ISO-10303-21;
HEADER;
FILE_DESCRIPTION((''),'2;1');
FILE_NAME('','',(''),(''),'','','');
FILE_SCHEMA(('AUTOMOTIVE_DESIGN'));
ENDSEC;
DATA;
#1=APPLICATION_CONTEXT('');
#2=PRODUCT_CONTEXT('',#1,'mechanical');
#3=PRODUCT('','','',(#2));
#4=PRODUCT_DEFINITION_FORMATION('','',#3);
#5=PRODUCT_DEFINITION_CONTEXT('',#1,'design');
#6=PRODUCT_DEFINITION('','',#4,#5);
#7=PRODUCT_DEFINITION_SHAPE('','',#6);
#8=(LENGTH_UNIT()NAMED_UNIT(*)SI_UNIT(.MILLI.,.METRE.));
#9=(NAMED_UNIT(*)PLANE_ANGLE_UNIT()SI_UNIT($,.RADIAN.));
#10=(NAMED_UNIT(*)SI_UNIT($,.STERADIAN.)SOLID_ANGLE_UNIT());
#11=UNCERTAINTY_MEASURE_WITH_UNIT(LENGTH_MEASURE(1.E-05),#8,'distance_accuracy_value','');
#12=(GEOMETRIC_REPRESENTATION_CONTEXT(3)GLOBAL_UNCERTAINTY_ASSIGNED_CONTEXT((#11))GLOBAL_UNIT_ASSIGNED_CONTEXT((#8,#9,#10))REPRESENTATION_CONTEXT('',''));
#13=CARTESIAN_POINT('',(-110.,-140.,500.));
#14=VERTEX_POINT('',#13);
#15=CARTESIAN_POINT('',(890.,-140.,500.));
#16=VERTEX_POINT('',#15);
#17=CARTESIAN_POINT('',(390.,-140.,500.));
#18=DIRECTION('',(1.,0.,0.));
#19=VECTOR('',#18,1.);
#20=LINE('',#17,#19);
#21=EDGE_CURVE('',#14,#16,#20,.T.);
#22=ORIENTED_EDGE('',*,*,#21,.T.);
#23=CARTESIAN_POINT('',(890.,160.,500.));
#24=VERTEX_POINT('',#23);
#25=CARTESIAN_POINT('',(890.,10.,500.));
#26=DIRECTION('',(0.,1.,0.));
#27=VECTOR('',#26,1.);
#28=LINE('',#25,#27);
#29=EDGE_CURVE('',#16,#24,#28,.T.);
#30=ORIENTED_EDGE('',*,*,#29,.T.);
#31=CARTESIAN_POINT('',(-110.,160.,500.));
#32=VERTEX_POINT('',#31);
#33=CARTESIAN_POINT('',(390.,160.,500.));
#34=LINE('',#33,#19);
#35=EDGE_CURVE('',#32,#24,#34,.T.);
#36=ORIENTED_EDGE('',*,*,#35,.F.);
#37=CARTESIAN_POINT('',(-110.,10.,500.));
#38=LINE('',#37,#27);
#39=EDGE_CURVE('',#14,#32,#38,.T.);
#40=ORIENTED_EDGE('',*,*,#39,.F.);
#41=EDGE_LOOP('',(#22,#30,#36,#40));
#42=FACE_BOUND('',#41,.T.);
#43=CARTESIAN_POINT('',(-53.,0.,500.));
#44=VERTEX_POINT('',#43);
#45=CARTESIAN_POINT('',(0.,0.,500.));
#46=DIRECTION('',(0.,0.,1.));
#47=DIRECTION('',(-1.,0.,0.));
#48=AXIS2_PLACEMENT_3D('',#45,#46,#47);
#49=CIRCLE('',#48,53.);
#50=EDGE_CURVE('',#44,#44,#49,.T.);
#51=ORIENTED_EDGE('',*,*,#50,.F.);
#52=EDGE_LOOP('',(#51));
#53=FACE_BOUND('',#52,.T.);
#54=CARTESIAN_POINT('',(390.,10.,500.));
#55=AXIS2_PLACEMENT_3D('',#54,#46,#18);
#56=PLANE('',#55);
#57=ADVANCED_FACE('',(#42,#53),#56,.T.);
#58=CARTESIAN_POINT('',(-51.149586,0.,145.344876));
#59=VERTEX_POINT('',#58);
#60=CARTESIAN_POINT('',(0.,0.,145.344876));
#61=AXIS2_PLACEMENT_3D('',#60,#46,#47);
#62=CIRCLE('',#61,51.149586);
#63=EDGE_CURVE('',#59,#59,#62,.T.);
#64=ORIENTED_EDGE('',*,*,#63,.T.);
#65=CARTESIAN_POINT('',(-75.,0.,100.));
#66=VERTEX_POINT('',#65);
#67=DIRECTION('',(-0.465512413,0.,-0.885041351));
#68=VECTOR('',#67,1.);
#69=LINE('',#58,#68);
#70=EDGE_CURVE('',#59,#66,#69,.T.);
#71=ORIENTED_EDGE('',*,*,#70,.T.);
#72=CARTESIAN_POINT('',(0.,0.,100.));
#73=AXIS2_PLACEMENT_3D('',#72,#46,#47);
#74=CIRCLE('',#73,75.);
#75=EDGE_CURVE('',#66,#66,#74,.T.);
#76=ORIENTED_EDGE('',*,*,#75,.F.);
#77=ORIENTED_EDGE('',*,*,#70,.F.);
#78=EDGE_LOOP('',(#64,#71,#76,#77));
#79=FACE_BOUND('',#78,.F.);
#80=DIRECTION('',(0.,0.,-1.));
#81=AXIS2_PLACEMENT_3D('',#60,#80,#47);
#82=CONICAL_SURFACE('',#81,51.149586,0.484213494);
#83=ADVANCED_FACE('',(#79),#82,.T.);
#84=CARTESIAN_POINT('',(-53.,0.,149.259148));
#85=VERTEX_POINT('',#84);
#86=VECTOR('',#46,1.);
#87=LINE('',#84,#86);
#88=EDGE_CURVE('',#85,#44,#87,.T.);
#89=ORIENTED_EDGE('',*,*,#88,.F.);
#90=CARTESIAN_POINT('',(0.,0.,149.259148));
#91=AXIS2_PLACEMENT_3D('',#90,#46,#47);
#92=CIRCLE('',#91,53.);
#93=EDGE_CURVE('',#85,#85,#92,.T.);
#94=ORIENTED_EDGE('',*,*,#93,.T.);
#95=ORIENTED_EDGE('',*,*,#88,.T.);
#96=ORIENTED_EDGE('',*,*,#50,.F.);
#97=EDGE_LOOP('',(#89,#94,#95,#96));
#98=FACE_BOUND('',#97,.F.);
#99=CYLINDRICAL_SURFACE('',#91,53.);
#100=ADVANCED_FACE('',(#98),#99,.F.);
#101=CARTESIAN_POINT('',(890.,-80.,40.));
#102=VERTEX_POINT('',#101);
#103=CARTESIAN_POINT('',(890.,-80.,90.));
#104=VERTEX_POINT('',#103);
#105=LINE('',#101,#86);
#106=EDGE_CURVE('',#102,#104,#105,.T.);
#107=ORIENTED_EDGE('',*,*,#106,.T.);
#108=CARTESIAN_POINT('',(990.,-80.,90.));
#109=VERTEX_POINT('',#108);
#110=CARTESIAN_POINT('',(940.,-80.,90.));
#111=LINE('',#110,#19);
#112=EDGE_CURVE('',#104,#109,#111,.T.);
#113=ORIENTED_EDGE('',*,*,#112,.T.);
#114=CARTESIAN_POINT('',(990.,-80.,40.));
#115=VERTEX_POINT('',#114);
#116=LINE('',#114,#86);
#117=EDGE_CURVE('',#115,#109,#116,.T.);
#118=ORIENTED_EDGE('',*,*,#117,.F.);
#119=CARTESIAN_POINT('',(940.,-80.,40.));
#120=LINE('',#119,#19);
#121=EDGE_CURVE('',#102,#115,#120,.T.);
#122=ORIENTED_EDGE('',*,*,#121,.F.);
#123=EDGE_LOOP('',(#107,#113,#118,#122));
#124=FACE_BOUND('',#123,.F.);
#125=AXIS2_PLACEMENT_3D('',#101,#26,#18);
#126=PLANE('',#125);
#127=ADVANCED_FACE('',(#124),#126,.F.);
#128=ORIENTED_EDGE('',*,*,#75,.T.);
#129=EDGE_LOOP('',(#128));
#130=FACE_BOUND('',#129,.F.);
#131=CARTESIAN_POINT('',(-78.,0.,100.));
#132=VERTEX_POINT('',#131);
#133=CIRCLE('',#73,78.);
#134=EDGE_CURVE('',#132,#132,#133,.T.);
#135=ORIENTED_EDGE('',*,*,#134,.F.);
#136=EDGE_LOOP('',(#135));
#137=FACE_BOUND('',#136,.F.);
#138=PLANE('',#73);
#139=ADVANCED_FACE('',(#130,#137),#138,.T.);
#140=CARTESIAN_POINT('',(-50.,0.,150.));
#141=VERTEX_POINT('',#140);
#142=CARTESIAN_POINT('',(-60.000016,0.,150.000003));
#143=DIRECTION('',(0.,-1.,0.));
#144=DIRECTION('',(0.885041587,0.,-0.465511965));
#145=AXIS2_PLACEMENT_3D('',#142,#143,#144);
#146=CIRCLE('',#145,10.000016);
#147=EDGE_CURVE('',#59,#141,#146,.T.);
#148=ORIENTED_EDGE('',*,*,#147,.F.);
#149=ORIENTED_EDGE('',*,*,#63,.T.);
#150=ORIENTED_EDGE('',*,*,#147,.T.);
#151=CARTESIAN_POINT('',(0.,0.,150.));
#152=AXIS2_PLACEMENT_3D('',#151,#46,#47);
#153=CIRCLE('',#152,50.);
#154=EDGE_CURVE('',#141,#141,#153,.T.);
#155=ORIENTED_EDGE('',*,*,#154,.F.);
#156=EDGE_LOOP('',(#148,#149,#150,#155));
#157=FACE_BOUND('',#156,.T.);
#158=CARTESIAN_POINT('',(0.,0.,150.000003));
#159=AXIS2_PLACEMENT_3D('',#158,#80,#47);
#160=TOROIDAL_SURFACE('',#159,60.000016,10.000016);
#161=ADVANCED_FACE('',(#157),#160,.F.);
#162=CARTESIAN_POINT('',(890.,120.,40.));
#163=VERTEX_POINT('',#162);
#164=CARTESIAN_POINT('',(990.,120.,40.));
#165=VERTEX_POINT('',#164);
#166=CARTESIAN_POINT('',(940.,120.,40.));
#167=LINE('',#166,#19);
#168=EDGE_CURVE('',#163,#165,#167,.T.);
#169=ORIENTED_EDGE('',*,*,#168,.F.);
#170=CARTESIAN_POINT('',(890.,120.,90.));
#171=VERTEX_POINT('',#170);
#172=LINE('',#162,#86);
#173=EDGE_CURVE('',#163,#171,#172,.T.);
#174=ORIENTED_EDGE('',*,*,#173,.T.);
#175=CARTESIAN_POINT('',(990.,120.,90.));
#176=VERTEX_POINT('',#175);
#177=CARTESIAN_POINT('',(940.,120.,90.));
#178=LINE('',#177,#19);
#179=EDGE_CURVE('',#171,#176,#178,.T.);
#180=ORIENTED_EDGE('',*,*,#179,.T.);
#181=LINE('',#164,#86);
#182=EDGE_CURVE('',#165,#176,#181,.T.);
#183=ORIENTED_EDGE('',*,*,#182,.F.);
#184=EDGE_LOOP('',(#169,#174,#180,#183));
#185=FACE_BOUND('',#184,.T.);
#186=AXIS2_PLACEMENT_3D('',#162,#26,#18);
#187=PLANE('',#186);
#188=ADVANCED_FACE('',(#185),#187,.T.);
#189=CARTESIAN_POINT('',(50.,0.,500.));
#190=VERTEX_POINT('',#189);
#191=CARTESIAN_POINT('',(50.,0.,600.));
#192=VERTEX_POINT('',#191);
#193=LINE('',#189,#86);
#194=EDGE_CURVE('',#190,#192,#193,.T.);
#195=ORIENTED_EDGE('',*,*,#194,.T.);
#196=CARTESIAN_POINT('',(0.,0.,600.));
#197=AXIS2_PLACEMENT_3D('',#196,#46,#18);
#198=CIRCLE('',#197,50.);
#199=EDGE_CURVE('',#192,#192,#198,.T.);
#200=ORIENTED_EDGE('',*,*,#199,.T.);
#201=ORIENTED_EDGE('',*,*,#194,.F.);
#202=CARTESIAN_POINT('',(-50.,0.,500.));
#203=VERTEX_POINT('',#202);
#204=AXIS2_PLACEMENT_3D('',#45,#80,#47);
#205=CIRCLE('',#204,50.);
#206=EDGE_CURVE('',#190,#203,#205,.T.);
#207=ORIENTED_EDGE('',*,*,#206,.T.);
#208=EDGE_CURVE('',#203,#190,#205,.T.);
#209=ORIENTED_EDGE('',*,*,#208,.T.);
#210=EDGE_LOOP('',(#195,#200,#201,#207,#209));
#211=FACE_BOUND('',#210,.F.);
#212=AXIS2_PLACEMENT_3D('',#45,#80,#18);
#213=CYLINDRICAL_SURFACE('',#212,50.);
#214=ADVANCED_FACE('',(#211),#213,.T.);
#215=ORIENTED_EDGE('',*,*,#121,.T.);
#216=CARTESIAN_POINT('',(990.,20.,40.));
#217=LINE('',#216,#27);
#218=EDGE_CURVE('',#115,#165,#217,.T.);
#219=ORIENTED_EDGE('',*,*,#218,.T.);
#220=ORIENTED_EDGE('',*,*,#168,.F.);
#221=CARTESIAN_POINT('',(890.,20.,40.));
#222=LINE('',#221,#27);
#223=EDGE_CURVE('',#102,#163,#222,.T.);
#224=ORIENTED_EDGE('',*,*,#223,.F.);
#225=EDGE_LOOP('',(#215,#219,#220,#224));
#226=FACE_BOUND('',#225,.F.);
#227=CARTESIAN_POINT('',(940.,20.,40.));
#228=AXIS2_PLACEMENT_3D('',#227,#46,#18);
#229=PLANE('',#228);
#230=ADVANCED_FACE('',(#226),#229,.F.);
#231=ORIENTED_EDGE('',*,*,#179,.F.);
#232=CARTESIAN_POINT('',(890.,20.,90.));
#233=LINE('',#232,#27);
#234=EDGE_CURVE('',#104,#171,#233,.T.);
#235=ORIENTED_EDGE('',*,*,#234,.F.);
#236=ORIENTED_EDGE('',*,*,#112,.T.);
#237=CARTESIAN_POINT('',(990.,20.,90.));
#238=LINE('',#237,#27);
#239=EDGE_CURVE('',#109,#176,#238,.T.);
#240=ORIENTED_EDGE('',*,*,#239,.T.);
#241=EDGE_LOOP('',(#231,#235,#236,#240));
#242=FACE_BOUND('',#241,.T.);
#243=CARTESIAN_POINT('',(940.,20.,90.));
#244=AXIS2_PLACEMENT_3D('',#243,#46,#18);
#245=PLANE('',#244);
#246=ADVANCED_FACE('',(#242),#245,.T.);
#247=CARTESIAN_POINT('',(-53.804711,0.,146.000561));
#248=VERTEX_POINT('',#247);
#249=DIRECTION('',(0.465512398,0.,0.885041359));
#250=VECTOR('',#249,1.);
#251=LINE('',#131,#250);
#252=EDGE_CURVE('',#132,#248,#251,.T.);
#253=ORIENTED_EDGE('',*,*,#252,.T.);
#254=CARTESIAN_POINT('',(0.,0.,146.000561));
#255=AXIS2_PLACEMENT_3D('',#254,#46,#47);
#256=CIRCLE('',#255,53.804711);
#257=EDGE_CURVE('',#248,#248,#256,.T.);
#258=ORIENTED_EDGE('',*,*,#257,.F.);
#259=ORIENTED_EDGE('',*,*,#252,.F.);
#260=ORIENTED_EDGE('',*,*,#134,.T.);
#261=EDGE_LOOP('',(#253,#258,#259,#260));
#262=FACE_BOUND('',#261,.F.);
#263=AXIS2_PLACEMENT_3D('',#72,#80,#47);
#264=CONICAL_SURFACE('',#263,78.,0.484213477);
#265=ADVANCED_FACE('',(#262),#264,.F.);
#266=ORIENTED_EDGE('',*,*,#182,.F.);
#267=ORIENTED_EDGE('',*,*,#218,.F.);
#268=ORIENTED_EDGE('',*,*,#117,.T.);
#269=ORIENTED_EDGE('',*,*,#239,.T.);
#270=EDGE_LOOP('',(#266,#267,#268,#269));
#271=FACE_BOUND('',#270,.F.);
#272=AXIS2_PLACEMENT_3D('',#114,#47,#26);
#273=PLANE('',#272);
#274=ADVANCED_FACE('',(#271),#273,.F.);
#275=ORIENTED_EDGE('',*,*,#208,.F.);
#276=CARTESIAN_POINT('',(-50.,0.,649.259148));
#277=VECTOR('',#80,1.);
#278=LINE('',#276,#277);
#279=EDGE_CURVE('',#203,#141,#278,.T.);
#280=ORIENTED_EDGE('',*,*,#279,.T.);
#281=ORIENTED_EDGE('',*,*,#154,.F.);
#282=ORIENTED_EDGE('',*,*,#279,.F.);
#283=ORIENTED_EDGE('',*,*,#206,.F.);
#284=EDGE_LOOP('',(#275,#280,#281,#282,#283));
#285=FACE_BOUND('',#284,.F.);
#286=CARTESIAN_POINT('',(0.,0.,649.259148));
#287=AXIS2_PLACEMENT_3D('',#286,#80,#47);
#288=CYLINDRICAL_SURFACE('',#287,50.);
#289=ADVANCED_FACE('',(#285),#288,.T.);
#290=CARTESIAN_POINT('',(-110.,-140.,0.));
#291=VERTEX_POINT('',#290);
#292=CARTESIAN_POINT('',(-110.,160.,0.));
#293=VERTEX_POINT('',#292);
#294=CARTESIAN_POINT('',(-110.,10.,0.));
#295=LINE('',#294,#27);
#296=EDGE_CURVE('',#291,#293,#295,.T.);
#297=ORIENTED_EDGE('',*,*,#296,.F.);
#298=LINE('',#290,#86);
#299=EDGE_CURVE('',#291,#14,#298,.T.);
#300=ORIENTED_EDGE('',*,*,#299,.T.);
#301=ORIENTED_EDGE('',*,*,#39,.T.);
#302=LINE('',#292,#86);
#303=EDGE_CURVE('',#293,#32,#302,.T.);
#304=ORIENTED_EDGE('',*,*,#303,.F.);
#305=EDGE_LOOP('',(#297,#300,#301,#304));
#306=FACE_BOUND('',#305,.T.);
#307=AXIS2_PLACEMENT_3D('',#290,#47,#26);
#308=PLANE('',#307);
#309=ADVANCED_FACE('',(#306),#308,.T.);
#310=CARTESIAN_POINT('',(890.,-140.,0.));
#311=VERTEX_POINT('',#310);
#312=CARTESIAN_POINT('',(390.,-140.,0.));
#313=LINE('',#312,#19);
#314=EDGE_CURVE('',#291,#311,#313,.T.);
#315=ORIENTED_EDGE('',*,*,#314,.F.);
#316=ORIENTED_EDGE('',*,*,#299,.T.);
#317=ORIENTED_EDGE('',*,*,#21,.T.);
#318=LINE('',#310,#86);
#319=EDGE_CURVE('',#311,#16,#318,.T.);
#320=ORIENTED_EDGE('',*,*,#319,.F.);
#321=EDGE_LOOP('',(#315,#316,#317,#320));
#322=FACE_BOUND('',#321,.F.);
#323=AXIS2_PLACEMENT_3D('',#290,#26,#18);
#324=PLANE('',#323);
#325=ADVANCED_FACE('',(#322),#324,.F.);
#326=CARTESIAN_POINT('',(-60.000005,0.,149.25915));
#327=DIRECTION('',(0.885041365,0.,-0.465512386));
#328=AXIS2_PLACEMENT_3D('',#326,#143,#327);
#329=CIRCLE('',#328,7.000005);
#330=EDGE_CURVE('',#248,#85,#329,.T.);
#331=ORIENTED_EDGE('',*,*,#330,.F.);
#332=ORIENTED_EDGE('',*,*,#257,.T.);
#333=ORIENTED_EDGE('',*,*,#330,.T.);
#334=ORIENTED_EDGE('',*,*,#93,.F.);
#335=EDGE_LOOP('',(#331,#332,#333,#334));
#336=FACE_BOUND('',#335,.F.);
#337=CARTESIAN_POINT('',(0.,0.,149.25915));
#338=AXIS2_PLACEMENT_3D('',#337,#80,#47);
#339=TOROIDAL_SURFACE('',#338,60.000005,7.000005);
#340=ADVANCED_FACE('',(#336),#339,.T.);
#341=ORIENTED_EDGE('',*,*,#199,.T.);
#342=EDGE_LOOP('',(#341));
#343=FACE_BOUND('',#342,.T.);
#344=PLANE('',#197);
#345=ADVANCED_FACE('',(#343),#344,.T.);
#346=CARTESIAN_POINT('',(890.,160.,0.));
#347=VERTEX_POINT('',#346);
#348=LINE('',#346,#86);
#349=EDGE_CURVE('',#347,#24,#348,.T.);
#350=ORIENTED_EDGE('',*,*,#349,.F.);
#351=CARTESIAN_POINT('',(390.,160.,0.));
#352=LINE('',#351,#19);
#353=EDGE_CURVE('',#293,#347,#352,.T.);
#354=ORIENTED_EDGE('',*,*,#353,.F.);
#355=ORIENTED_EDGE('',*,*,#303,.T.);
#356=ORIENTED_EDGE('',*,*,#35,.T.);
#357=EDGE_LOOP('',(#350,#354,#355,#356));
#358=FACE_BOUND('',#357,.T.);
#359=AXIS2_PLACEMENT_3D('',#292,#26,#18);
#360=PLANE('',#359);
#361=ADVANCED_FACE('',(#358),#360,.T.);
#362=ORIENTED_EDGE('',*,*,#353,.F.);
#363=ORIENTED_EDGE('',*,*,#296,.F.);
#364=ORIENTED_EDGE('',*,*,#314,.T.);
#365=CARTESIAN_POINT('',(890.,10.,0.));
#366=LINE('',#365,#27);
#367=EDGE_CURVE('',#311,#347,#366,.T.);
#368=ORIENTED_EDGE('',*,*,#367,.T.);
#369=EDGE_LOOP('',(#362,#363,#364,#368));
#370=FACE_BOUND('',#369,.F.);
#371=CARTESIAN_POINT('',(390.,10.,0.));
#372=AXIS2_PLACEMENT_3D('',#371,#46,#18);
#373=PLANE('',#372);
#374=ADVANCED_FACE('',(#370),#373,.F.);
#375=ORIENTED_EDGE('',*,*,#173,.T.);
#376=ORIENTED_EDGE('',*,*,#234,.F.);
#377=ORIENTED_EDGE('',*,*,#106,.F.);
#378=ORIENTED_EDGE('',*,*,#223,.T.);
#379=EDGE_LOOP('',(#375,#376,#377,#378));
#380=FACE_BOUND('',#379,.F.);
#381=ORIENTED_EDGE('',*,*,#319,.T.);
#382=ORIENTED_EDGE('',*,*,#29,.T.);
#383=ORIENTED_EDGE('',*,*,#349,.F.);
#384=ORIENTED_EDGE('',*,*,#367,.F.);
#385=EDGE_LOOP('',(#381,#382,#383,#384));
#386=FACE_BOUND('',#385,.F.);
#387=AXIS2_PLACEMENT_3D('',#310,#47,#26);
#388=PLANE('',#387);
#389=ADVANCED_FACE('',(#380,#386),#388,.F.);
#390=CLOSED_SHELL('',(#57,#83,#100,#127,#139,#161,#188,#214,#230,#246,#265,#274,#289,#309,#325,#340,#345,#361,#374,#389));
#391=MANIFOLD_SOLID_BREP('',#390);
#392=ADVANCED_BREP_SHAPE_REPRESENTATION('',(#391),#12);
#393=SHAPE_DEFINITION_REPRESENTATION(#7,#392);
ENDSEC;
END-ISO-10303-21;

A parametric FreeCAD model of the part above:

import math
import FreeCAD as App
import Part
import Sketcher

V = App.Vector
Q = App.Units.Quantity


def add_polygon(sketch, points):
    """Adds a closed chain of lines whose ends are joined by coincident constraints."""
    first, n = sketch.GeometryCount, len(points)
    for a, b in zip(points, points[1:] + points[:1]):
        sketch.addGeometry(Part.LineSegment(App.Vector(*a, 0), App.Vector(*b, 0)), False)
    for i in range(n):
        sketch.addConstraint(Sketcher.Constraint("Coincident", first + i, 2, first + (i + 1) % n, 1))

doc = App.newDocument("Part")
body = doc.addObject("PartDesign::Body", "Body")

# Sketch on XY plane
sketch1 = doc.addObject("Sketcher::SketchObject", "Sketch")
body.addObject(sketch1)
sketch1.AttachmentSupport = (doc.XY_Plane, [""])
sketch1.MapMode = "FlatFace"
sketch1.AttachmentOffset = App.Placement(V(0, 0, 40), App.Rotation())
add_polygon(sketch1, [(890, 120), (890, -80), (990, -80), (990, 120)])  # lines 0-3
sketch1.addConstraint([
    Sketcher.Constraint("Vertical", 0),
    Sketcher.Constraint("Horizontal", 1),
    Sketcher.Constraint("Vertical", 2),
    Sketcher.Constraint("Horizontal", 3),
    Sketcher.Constraint("DistanceX", 1, 1, 1, 2, Q("100 mm")),
    Sketcher.Constraint("DistanceY", 0, 2, 0, 1, Q("200 mm")),
    Sketcher.Constraint("DistanceX", -1, 1, 0, 2, Q("890 mm")),
    Sketcher.Constraint("DistanceY", 0, 2, -1, 1, Q("80 mm")),
])
pad1 = doc.addObject("PartDesign::Pad", "Pad")
body.addObject(pad1)
pad1.Profile = sketch1
pad1.Length = 50
body2 = doc.addObject("PartDesign::Body", "Body001")

# Sketch on XZ plane
sketch2 = doc.addObject("Sketcher::SketchObject", "Sketch001")
body2.addObject(sketch2)
sketch2.AttachmentSupport = (doc.getObject("XZ_Plane001"), [""])
sketch2.MapMode = "FlatFace"
sketch2.addGeometry([
    Part.LineSegment(V(-50, 150, 0), V(-50, 649.3, 0)),  # 0
    Part.LineSegment(V(-50, 649.3, 0), V(-53, 649.3, 0)),  # 1
    Part.LineSegment(V(-53, 649.3, 0), V(-53, 149.3, 0)),  # 2
    Part.ArcOfCircle(Part.Circle(V(-60, 149.3, 0), V(0, 0, 1), 7), math.radians(-28), math.radians(0)),  # 3
    Part.LineSegment(V(-53.8, 146, 0), V(-78, 100, 0)),  # 4
    Part.LineSegment(V(-78, 100, 0), V(-75, 100, 0)),  # 5
    Part.LineSegment(V(-75, 100, 0), V(-51.1, 145.3, 0)),  # 6
    Part.ArcOfCircle(Part.Circle(V(-60, 150, 0), V(0, 0, 1), 10), math.radians(-28), math.radians(0)),  # 7
], False)
sketch2.addConstraint([
    Sketcher.Constraint("Coincident", 0, 2, 1, 1),
    Sketcher.Constraint("Coincident", 1, 2, 2, 1),
    Sketcher.Constraint("Tangent", 2, 2, 3, 2),
    Sketcher.Constraint("Tangent", 3, 1, 4, 1),
    Sketcher.Constraint("Coincident", 4, 2, 5, 1),
    Sketcher.Constraint("Coincident", 5, 2, 6, 1),
    Sketcher.Constraint("Tangent", 6, 2, 7, 1),
    Sketcher.Constraint("Tangent", 7, 2, 0, 1),
    Sketcher.Constraint("Vertical", 0),
    Sketcher.Constraint("Horizontal", 1),
    Sketcher.Constraint("Vertical", 2),
    Sketcher.Constraint("Horizontal", 5),
    Sketcher.Constraint("Parallel", 4, 6),
    Sketcher.Constraint("Equal", 1, 5),
    Sketcher.Constraint("DistanceX", 1, 2, 1, 1, Q("3 mm")),
    Sketcher.Constraint("DistanceY", 2, 2, 2, 1, Q("500 mm")),
    Sketcher.Constraint("DistanceX", 0, 2, -1, 1, Q("50 mm")),
    Sketcher.Constraint("DistanceX", 4, 2, -1, 1, Q("78 mm")),
    Sketcher.Constraint("DistanceY", -1, 1, 4, 2, Q("100 mm")),
    Sketcher.Constraint("DistanceY", -1, 1, 7, 2, Q("150 mm")),
    Sketcher.Constraint("Radius", 3, Q("7.000005 mm")),
    Sketcher.Constraint("Radius", 7, Q("10.000016 mm")),
])
revolution = doc.addObject("PartDesign::Revolution", "Revolution")
body2.addObject(revolution)
revolution.Profile = sketch2
revolution.ReferenceAxis = (sketch2, ["V_Axis"])
revolution.Angle = 360
body3 = doc.addObject("PartDesign::Body", "Body002")

# Sketch on XY plane
sketch3 = doc.addObject("Sketcher::SketchObject", "Sketch002")
body3.addObject(sketch3)
sketch3.AttachmentSupport = (doc.getObject("XY_Plane002"), [""])
sketch3.MapMode = "FlatFace"
add_polygon(sketch3, [(-110, 160), (-110, -140), (890, -140), (890, 160)])  # lines 0-3
sketch3.addConstraint([
    Sketcher.Constraint("Vertical", 0),
    Sketcher.Constraint("Horizontal", 1),
    Sketcher.Constraint("Vertical", 2),
    Sketcher.Constraint("Horizontal", 3),
    Sketcher.Constraint("DistanceX", 1, 1, 1, 2, Q("1000 mm")),
    Sketcher.Constraint("DistanceY", 0, 2, 0, 1, Q("300 mm")),
    Sketcher.Constraint("DistanceX", 0, 2, -1, 1, Q("110 mm")),
    Sketcher.Constraint("DistanceY", 0, 2, -1, 1, Q("140 mm")),
])
pad2 = doc.addObject("PartDesign::Pad", "Pad001")
body3.addObject(pad2)
pad2.Profile = sketch3
pad2.Length = 500
doc.recompute()

boolean = doc.addObject("PartDesign::Boolean", "Boolean")
body3.addObject(boolean)
boolean.Type = "Cut"
boolean.addObjects([body2])

# Sketch on XY plane
sketch4 = doc.addObject("Sketcher::SketchObject", "Sketch003")
body3.addObject(sketch4)
sketch4.AttachmentSupport = (doc.getObject("XY_Plane002"), [""])
sketch4.MapMode = "FlatFace"
sketch4.AttachmentOffset = App.Placement(V(0, 0, 500), App.Rotation())
sketch4.addGeometry(Part.Circle(V(0, 0, 0), V(0, 0, 1), 50), False)
sketch4.addConstraint([
    Sketcher.Constraint("Coincident", 0, 3, -1, 1),
    Sketcher.Constraint("Diameter", 0, Q("100 mm")),
])
pad3 = doc.addObject("PartDesign::Pad", "Pad002")
body3.addObject(pad3)
pad3.Profile = sketch4
pad3.Length = 100
doc.recompute()

boolean2 = doc.addObject("PartDesign::Boolean", "Boolean001")
body3.addObject(boolean2)
boolean2.Type = "Fuse"
boolean2.addObjects([body])

doc.recompute()
